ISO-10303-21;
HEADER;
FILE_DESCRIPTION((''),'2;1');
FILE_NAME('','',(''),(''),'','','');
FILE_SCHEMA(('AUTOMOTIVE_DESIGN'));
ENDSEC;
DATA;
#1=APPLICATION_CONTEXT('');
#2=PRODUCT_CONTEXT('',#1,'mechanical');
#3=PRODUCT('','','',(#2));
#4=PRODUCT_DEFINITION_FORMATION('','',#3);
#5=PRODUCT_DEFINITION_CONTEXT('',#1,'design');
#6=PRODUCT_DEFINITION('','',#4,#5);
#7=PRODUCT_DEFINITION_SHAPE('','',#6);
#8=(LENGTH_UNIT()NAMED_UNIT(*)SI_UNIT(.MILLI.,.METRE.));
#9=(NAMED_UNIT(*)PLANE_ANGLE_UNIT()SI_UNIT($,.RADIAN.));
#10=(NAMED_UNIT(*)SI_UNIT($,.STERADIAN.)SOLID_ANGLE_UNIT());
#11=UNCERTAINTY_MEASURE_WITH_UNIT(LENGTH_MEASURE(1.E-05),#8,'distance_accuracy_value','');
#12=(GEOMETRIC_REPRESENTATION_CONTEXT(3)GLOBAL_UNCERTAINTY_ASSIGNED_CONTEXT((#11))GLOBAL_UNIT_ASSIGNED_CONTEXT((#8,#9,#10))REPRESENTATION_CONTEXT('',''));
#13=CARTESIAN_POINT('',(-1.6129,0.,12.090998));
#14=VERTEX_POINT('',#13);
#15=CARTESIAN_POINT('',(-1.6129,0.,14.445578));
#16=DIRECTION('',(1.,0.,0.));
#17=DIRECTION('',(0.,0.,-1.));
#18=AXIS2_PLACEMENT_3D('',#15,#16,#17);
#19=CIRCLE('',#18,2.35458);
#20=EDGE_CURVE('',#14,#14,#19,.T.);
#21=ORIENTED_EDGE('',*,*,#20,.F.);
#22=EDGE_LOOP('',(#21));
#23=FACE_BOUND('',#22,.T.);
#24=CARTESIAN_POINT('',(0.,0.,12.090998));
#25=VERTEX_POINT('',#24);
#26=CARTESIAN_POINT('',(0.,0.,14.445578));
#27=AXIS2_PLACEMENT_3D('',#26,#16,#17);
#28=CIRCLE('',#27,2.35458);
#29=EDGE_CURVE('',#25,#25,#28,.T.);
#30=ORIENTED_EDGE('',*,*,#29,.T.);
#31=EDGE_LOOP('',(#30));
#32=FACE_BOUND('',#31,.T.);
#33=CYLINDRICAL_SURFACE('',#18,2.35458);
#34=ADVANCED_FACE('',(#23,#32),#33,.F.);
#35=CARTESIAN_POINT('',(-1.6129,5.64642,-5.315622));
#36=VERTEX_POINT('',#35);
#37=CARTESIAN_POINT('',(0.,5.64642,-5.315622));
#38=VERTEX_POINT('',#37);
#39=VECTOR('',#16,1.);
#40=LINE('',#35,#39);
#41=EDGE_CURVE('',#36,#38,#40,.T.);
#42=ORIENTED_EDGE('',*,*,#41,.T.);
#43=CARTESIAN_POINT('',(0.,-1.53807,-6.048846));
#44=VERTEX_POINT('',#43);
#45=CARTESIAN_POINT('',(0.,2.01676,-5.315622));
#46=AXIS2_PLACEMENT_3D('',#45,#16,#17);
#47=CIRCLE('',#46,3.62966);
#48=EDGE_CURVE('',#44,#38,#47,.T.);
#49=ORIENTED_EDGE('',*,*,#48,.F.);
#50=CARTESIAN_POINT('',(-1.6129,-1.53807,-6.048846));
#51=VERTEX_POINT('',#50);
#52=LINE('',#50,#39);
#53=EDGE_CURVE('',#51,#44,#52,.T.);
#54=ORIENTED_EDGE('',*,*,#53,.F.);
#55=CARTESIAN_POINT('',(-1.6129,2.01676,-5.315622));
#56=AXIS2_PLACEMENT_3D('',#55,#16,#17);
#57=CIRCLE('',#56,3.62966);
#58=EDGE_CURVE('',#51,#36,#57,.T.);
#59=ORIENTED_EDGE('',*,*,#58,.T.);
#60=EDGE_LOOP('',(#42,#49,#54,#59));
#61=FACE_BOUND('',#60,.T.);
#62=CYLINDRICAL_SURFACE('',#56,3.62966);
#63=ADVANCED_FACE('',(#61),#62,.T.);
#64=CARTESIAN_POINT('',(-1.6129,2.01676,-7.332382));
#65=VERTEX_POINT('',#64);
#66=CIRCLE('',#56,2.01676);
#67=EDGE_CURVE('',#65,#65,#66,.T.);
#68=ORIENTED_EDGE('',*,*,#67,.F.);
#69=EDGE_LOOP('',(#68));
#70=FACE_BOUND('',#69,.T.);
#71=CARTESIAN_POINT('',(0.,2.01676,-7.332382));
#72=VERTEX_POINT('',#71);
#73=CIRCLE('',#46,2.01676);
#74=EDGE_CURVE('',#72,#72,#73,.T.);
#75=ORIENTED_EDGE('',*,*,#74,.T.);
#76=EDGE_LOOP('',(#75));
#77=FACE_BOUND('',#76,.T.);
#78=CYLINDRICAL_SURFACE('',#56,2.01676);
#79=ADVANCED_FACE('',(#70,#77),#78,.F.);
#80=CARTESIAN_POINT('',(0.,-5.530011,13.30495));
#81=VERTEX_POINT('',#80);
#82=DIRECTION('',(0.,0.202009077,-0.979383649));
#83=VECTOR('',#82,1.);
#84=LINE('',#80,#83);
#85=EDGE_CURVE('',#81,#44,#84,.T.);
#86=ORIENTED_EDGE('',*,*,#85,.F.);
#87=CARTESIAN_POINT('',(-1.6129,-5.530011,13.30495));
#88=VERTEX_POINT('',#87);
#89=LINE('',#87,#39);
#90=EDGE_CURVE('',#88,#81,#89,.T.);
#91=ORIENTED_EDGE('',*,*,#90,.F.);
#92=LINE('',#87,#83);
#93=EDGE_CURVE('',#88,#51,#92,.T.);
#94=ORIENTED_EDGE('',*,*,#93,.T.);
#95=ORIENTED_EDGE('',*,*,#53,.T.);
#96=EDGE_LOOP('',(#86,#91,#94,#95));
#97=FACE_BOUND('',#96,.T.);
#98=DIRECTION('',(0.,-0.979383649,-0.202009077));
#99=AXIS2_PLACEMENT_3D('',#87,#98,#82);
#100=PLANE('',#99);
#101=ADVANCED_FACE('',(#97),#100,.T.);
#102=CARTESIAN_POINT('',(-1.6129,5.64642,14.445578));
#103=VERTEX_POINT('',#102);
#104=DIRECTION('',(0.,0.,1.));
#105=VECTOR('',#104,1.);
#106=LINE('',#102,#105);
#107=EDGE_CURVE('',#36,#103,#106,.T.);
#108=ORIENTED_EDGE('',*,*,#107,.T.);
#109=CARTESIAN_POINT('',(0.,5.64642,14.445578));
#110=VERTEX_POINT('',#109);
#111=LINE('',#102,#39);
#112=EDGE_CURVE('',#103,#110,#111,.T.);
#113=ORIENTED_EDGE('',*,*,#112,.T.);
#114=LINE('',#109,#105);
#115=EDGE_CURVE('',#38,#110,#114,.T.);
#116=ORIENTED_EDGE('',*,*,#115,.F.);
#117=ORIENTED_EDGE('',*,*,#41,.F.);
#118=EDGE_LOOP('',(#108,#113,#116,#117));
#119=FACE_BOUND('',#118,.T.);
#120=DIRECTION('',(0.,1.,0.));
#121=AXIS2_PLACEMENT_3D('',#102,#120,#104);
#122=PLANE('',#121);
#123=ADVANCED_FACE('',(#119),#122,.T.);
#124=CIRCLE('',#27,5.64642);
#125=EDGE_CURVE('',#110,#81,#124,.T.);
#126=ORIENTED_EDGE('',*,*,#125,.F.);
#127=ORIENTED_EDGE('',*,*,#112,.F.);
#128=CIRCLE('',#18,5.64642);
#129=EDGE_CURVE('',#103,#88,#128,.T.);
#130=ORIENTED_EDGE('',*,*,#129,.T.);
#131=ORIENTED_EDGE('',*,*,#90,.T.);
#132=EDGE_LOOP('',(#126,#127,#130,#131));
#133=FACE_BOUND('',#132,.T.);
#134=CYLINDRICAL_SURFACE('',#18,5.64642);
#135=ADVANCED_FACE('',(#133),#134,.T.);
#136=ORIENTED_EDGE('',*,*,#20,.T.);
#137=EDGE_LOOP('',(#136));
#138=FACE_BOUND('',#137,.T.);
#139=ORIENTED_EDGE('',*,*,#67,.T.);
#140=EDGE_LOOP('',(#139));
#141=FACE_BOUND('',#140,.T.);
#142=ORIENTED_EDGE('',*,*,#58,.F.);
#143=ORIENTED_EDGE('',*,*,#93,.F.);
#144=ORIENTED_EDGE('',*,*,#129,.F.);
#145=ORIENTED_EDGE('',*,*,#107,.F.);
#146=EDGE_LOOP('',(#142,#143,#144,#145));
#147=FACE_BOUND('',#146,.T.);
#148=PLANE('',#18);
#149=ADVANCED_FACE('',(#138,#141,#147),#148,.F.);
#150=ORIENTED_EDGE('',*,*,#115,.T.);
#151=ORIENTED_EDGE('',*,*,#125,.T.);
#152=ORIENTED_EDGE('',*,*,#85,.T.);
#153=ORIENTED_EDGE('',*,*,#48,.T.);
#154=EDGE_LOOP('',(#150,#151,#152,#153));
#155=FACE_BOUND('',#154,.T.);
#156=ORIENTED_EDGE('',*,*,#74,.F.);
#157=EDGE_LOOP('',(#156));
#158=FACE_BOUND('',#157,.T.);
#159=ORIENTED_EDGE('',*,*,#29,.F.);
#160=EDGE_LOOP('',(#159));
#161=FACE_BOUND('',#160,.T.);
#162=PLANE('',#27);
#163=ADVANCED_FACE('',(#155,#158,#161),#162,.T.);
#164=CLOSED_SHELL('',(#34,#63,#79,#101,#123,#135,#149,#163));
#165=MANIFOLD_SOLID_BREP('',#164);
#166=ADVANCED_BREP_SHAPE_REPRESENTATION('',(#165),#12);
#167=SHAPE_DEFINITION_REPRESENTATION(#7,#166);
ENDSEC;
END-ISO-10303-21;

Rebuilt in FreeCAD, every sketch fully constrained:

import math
import FreeCAD as App
import Part
import Sketcher

V = App.Vector
Q = App.Units.Quantity

doc = App.newDocument("Part")
body = doc.addObject("PartDesign::Body", "Body")

sketch1 = body.newObject("Sketcher::SketchObject", "Sketch")
sketch1.AttachmentSupport = (doc.getObject("YZ_Plane"), [""])
sketch1.MapMode = "FlatFace"
sketch1.addGeometry(Part.LineSegment(V(5.6, -5.3, 0), V(5.6, 14.4, 0)), False)
sketch1.addGeometry(Part.ArcOfCircle(Part.Circle(V(0, 14.4, 0), V(0, 0, 1), 5.6), math.radians(0), math.radians(192)), False)
sketch1.addGeometry(Part.LineSegment(V(-5.5, 13.3, 0), V(-1.5, -6, 0)), False)
sketch1.addGeometry(Part.ArcOfCircle(Part.Circle(V(2, -5.3, 0), V(0, 0, 1), 3.6), math.radians(-168), math.radians(0)), False)
sketch1.addGeometry(Part.Circle(V(0, 14.4, 0), V(0, 0, 1), 2.4), False)
sketch1.addGeometry(Part.Circle(V(2, -5.3, 0), V(0, 0, 1), 2), False)
sketch1.addConstraint(Sketcher.Constraint("Tangent", 0, 2, 1, 1))
sketch1.addConstraint(Sketcher.Constraint("Tangent", 1, 2, 2, 1))
sketch1.addConstraint(Sketcher.Constraint("Tangent", 2, 2, 3, 1))
sketch1.addConstraint(Sketcher.Constraint("Tangent", 3, 2, 0, 1))
sketch1.addConstraint(Sketcher.Constraint("Vertical", 0))
sketch1.addConstraint(Sketcher.Constraint("Coincident", 4, 3, 1, 3))
sketch1.addConstraint(Sketcher.Constraint("Coincident", 5, 3, 3, 3))
sketch1.addConstraint(Sketcher.Constraint("PointOnObject", 1, 3, -2))
sketch1.addConstraint(Sketcher.Constraint("Diameter", 4, Q("0.1854 in")))
sketch1.addConstraint(Sketcher.Constraint("Diameter", 5, Q("0.1588 in")))
sketch1.addConstraint(Sketcher.Constraint("Radius", 1, Q("0.2223 in")))
sketch1.addConstraint(Sketcher.Constraint("Radius", 3, Q("0.1429 in")))
sketch1.addConstraint(Sketcher.Constraint("DistanceY", 0, 1, 0, 2, Q("0.778 in")))
sketch1.addConstraint(Sketcher.Constraint("DistanceY", -1, 1, 1, 3, 14.445578))
pad1 = body.newObject("PartDesign::Pad", "Pad")
pad1.Profile = sketch1
pad1.Length = Q("0.0635 in")
pad1.Reversed = True

doc.recompute()
